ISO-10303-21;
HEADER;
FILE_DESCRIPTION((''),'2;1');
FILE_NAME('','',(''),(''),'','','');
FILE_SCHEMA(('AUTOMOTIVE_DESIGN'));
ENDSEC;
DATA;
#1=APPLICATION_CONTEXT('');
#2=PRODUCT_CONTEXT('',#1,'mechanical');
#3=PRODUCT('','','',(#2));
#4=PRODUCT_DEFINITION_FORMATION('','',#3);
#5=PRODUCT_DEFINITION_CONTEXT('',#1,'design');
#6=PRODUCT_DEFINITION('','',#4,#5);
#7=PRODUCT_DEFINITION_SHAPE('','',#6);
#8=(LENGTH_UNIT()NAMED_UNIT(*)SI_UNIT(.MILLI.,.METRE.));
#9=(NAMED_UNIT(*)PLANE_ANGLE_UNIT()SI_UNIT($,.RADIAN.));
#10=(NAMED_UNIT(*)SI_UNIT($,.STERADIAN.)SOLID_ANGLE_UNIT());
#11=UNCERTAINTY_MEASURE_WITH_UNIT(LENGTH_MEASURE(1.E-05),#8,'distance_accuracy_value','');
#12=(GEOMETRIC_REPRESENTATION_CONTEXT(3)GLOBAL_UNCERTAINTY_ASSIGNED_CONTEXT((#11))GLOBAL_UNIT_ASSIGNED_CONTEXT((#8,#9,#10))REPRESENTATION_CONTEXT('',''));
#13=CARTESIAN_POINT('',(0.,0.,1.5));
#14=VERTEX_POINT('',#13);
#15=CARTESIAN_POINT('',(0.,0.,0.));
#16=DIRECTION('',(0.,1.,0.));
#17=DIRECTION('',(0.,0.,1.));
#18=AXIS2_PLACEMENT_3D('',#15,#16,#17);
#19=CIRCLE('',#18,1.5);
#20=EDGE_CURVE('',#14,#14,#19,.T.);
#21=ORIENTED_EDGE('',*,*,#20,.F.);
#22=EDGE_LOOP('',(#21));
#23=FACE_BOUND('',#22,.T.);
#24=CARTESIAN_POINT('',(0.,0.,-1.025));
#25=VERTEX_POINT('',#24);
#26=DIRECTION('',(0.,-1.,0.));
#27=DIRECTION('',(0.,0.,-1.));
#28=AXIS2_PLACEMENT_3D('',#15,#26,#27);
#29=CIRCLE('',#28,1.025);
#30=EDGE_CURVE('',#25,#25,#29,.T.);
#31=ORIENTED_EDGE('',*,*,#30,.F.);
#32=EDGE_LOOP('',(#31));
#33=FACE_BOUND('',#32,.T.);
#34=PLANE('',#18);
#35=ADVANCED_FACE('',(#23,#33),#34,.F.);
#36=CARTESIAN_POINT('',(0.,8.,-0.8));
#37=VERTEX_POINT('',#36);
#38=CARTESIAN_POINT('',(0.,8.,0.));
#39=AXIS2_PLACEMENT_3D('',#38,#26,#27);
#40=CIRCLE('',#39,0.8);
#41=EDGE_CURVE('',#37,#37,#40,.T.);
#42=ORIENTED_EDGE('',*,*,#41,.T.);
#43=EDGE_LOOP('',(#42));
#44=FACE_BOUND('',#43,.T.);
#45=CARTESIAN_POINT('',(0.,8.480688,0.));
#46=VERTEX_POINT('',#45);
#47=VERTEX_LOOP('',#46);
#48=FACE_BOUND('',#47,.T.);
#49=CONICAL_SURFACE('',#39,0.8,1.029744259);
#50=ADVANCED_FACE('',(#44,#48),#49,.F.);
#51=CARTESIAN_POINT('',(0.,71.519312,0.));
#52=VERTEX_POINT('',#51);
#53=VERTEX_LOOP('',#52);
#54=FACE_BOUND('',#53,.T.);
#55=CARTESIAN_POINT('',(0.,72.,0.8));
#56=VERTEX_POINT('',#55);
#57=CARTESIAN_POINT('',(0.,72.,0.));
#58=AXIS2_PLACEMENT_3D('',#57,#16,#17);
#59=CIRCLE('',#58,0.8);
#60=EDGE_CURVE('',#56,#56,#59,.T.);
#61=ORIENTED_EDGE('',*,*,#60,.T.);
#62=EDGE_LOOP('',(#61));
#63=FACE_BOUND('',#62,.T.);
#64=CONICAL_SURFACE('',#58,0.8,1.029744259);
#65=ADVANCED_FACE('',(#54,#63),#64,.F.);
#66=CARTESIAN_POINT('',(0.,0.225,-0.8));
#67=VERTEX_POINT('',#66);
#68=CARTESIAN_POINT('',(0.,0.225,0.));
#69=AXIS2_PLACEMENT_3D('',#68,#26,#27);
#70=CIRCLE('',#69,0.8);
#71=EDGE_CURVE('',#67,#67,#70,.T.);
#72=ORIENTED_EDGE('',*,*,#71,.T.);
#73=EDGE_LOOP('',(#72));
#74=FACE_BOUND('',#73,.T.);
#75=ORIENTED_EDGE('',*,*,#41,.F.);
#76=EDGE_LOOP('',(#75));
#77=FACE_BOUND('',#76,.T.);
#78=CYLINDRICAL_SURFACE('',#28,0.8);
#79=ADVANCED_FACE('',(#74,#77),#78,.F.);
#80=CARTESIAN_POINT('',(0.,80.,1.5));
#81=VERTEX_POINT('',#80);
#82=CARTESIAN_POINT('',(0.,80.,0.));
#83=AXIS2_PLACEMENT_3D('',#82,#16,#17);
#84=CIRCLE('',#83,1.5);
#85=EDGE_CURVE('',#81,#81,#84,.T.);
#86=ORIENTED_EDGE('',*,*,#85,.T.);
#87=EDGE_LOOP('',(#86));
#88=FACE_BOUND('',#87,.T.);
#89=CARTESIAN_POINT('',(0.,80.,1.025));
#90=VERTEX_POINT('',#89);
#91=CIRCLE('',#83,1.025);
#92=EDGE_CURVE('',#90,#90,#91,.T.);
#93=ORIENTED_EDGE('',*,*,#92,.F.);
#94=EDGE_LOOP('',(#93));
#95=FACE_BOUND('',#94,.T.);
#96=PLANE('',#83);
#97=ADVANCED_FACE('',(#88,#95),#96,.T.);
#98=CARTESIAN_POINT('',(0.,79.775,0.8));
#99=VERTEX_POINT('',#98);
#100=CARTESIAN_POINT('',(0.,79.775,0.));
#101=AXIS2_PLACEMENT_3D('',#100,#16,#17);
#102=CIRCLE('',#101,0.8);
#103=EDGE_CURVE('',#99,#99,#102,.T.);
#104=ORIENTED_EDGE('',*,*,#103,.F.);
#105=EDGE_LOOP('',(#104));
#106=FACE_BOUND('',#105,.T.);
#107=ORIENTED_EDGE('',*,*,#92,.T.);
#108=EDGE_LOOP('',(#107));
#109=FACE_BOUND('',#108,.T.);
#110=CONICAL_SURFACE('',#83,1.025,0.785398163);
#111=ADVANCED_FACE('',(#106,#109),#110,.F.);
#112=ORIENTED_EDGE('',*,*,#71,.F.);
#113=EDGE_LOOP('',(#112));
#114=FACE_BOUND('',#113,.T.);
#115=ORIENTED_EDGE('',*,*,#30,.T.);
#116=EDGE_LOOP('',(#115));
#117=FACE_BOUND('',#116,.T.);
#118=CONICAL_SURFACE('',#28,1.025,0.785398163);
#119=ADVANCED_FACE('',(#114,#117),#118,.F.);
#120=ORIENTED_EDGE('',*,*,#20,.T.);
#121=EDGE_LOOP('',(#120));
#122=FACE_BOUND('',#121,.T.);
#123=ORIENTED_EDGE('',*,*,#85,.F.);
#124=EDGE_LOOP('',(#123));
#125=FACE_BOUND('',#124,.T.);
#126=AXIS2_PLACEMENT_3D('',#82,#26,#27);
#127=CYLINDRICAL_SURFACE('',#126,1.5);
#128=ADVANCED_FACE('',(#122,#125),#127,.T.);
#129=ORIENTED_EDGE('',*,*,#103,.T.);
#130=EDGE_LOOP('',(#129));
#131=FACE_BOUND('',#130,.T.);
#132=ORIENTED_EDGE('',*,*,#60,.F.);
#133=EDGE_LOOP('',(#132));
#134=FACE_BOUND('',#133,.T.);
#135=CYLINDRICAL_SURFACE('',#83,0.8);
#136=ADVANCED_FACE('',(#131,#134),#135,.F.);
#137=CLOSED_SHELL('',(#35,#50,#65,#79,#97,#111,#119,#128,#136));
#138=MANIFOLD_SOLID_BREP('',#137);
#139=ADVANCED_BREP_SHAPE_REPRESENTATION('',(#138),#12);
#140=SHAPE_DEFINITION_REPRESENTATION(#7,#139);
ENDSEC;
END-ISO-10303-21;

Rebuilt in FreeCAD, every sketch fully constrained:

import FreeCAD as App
import Part
import Sketcher

V = App.Vector
Q = App.Units.Quantity

doc = App.newDocument("Part")
body = doc.addObject("PartDesign::Body", "Body")

# Sketch on XZ plane
sketch1 = doc.addObject("Sketcher::SketchObject", "Sketch")
body.addObject(sketch1)
sketch1.AttachmentSupport = (doc.XZ_Plane, [""])
sketch1.MapMode = "FlatFace"
sketch1.addGeometry(Part.Circle(V(0, 0, 0), V(0, 0, 1), 1.5), False)
sketch1.addConstraint(Sketcher.Constraint("Coincident", 0, 3, -1, 1))
sketch1.addConstraint(Sketcher.Constraint("Diameter", 0, Q("3 mm")))
pad1 = doc.addObject("PartDesign::Pad", "Pad")
body.addObject(pad1)
pad1.Profile = sketch1
pad1.Length = 80
pad1.Reversed = True

# Sketch on XZ plane
sketch2 = doc.addObject("Sketcher::SketchObject", "Sketch001")
body.addObject(sketch2)
sketch2.AttachmentSupport = (doc.XZ_Plane, [""])
sketch2.MapMode = "FlatFace"
sketch2.AttachmentOffset = App.Placement(V(0, 0, -80), App.Rotation())
sketch2.addGeometry(Part.Circle(V(0, 0, 0), V(0, 0, 1), 0.8), False)
sketch2.addConstraint(Sketcher.Constraint("Coincident", 0, 3, -1, 1))
sketch2.addConstraint(Sketcher.Constraint("Diameter", 0, Q("1.6 mm")))
doc.recompute()
hole = doc.addObject("PartDesign::Hole", "Hole")
body.addObject(hole)
hole.Profile = sketch2
hole.ThreadType = "None"
hole.Diameter = 1.6
hole.DepthType = "Dimension"
hole.Depth = 8
hole.DrillPoint = "Angled"
hole.DrillPointAngle = 118
hole.HoleCutType = "Countersink"
hole.HoleCutDiameter = 2.05
hole.HoleCutCountersinkAngle = 90
hole.Reversed = True

# Sketch on XZ plane
sketch3 = doc.addObject("Sketcher::SketchObject", "Sketch002")
body.addObject(sketch3)
sketch3.AttachmentSupport = (doc.XZ_Plane, [""])
sketch3.MapMode = "FlatFace"
sketch3.addGeometry(Part.Circle(V(0, 0, 0), V(0, 0, 1), 0.8), False)
sketch3.addConstraint(Sketcher.Constraint("Coincident", 0, 3, -1, 1))
sketch3.addConstraint(Sketcher.Constraint("Diameter", 0, Q("1.6 mm")))
doc.recompute()
hole2 = doc.addObject("PartDesign::Hole", "Hole001")
body.addObject(hole2)
hole2.Profile = sketch3
hole2.ThreadType = "None"
hole2.Diameter = 1.6
hole2.DepthType = "Dimension"
hole2.Depth = 8
hole2.DrillPoint = "Angled"
hole2.DrillPointAngle = 118
hole2.HoleCutType = "Countersink"
hole2.HoleCutDiameter = 2.05
hole2.HoleCutCountersinkAngle = 90

doc.recompute()
